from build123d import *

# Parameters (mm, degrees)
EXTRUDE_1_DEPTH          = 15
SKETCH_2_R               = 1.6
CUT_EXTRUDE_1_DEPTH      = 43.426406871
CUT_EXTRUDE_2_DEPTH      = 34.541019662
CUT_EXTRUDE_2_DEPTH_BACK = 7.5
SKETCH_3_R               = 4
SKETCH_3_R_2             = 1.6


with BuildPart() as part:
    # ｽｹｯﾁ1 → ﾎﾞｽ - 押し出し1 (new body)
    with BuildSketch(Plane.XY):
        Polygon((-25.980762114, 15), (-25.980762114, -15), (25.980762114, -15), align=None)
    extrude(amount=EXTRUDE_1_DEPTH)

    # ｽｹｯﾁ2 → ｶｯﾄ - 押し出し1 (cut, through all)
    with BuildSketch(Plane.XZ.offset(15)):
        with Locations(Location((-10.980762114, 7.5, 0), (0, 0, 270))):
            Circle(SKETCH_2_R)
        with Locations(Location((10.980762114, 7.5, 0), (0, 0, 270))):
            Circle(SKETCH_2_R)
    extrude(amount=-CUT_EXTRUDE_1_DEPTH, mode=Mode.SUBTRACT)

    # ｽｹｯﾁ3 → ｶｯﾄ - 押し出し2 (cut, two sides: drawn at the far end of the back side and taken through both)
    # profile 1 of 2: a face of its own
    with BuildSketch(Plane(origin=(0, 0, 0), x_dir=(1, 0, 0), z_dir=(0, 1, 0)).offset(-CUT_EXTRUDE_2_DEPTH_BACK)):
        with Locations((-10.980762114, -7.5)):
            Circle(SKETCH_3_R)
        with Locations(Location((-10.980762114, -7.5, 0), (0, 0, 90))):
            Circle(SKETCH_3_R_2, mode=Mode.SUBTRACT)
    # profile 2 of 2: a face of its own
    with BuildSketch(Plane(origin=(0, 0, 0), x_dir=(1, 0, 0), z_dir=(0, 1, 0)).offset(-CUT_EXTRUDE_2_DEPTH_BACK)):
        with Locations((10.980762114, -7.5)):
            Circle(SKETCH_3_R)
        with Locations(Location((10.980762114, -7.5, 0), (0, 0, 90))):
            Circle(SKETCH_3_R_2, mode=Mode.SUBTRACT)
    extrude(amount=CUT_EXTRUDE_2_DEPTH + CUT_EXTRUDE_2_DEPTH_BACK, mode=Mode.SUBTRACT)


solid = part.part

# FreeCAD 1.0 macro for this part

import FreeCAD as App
import Part
import Sketcher

V = App.Vector
Q = App.Units.Quantity


def add_polygon(sketch, points):
    """Adds a closed chain of lines whose ends are joined by coincident constraints."""
    first, n = sketch.GeometryCount, len(points)
    for a, b in zip(points, points[1:] + points[:1]):
        sketch.addGeometry(Part.LineSegment(App.Vector(*a, 0), App.Vector(*b, 0)), False)
    for i in range(n):
        sketch.addConstraint(Sketcher.Constraint("Coincident", first + i, 2, first + (i + 1) % n, 1))

doc = App.newDocument("Part")
body = doc.addObject("PartDesign::Body", "Body")

# Sketch on XY plane
sketch1 = doc.addObject("Sketcher::SketchObject", "Sketch")
body.addObject(sketch1)
sketch1.AttachmentSupport = (doc.XY_Plane, [""])
sketch1.MapMode = "FlatFace"
add_polygon(sketch1, [(-25.980762, 15), (-25.980762, -15), (25.980762, -15)])  # lines 0-2
sketch1.addConstraint([
    Sketcher.Constraint("Vertical", 0),
    Sketcher.Constraint("Horizontal", 1),
    Sketcher.Constraint("Symmetric", 1, 2, 2, 2, -1, 1),
    Sketcher.Constraint("DistanceY", 0, 2, 0, 1, Q("30 mm")),
    Sketcher.Constraint("Angle", 2, Q("150 deg")),
])
pad1 = doc.addObject("PartDesign::Pad", "Pad")
body.addObject(pad1)
pad1.Profile = sketch1
pad1.Length = 15

# Sketch on XZ plane
sketch2 = doc.addObject("Sketcher::SketchObject", "Sketch001")
body.addObject(sketch2)
sketch2.AttachmentSupport = (doc.XZ_Plane, [""])
sketch2.MapMode = "FlatFace"
sketch2.AttachmentOffset = App.Placement(V(0, 0, 15), App.Rotation())
sketch2.addGeometry([
    Part.Circle(V(-10.980762, 7.5, 0), V(0, 0, 1), 1.6),
    Part.Circle(V(10.980762, 7.5, 0), V(0, 0, 1), 1.6),
], False)
sketch2.addConstraint([
    Sketcher.Constraint("Equal", 0, 1),
    Sketcher.Constraint("Symmetric", 0, 3, 1, 3, -2),
    Sketcher.Constraint("Diameter", 0, Q("3.2 mm")),
    Sketcher.Constraint("DistanceY", -1, 1, 0, 3, Q("7.5 mm")),
    Sketcher.Constraint("DistanceX", 0, 3, -1, 1, Q("10.980762 mm")),
])
pocket1 = doc.addObject("PartDesign::Pocket", "Pocket")
body.addObject(pocket1)
pocket1.Profile = sketch2
pocket1.Type = "ThroughAll"

# Sketch on XZ plane
sketch3 = doc.addObject("Sketcher::SketchObject", "Sketch002")
body.addObject(sketch3)
sketch3.AttachmentSupport = (doc.XZ_Plane, [""])
sketch3.MapMode = "FlatFace"
sketch3.addGeometry([
    Part.Circle(V(-10.980762, 7.5, 0), V(0, 0, 1), 4),
    Part.Circle(V(-10.980762, 7.5, 0), V(0, 0, 1), 1.6),
    Part.Circle(V(10.980762, 7.5, 0), V(0, 0, 1), 4),
    Part.Circle(V(10.980762, 7.5, 0), V(0, 0, 1), 1.6),
], False)
sketch3.addConstraint([
    Sketcher.Constraint("Coincident", 1, 3, 0, 3),
    Sketcher.Constraint("Coincident", 3, 3, 2, 3),
    Sketcher.Constraint("Equal", 0, 2),
    Sketcher.Constraint("Equal", 1, 3),
    Sketcher.Constraint("Symmetric", 0, 3, 2, 3, -2),
    Sketcher.Constraint("Diameter", 0, Q("8 mm")),
    Sketcher.Constraint("Diameter", 1, Q("3.2 mm")),
    Sketcher.Constraint("DistanceY", -1, 1, 0, 3, Q("7.5 mm")),
    Sketcher.Constraint("DistanceX", 0, 3, -1, 1, Q("10.980762 mm")),
])
pocket2 = doc.addObject("PartDesign::Pocket", "Pocket001")
body.addObject(pocket2)
pocket2.Profile = sketch3
pocket2.Type = "TwoLengths"
pocket2.Length = 34.54102
pocket2.Length2 = 7.5

doc.recompute()
